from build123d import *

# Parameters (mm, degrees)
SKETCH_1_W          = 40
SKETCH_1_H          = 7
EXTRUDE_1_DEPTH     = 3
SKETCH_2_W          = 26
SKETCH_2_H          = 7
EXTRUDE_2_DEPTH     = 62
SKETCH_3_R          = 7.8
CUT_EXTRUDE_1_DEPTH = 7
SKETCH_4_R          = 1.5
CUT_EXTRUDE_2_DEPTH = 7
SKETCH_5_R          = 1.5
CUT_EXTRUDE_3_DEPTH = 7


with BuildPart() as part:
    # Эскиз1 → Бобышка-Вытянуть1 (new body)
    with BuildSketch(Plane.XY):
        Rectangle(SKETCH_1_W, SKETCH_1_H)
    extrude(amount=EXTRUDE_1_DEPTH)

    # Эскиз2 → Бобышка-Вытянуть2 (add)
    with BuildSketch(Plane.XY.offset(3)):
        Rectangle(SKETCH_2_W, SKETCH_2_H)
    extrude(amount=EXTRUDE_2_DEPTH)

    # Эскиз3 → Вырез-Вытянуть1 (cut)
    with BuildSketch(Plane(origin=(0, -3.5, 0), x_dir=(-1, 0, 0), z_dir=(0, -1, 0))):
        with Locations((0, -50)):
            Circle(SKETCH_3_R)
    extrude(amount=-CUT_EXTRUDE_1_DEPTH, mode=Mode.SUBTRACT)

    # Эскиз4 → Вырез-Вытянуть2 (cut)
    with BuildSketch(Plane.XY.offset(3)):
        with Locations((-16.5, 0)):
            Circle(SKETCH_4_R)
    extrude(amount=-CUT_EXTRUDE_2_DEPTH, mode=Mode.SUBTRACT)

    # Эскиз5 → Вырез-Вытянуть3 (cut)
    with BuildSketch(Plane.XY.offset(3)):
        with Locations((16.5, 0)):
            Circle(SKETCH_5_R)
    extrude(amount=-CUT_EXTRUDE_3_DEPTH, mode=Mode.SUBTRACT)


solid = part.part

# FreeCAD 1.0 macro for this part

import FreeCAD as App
import Part
import Sketcher
from FreeCAD import Vector
Q = App.Units.Quantity

doc = App.newDocument("Part")
params = doc.addObject("Spreadsheet::Sheet", "Params")
for row, (alias, value) in enumerate([
    ("sketch1_width", "40 mm"),
    ("sketch1_height", "7 mm"),
    ("pad1_length", "3 mm"),
    ("sketch2_width", "26 mm"),
    ("sketch2_height", "7 mm"),
    ("pad2_length", "62 mm"),
    ("sketch3_diameter", "15.6 mm"),
    ("pocket1_length", "7 mm"),
    ("sketch4_diameter", "3 mm"),
    ("pocket2_length", "7 mm"),
    ("sketch5_diameter", "3 mm"),
    ("pocket3_length", "7 mm"),
], start=1):
    params.set(f"A{row}", alias)
    params.set(f"B{row}", "=" + value)
    params.setAlias(f"B{row}", alias)

body = doc.addObject("PartDesign::Body", "Body")

sketch1 = body.newObject("Sketcher::SketchObject", "Sketch")
sketch1.AttachmentSupport = (doc.getObject("XY_Plane"), [""])
sketch1.MapMode = "FlatFace"
sketch1.addGeometry(Part.LineSegment(Vector(-20, 3.5, 0), Vector(-20, -3.5, 0)), False)
sketch1.addGeometry(Part.LineSegment(Vector(-20, -3.5, 0), Vector(20, -3.5, 0)), False)
sketch1.addGeometry(Part.LineSegment(Vector(20, -3.5, 0), Vector(20, 3.5, 0)), False)
sketch1.addGeometry(Part.LineSegment(Vector(20, 3.5, 0), Vector(-20, 3.5, 0)), False)
sketch1.addConstraint(Sketcher.Constraint("Coincident", 0, 2, 1, 1))
sketch1.addConstraint(Sketcher.Constraint("Coincident", 1, 2, 2, 1))
sketch1.addConstraint(Sketcher.Constraint("Coincident", 2, 2, 3, 1))
sketch1.addConstraint(Sketcher.Constraint("Coincident", 3, 2, 0, 1))
sketch1.addConstraint(Sketcher.Constraint("Vertical", 0))
sketch1.addConstraint(Sketcher.Constraint("Horizontal", 1))
sketch1.addConstraint(Sketcher.Constraint("Vertical", 2))
sketch1.addConstraint(Sketcher.Constraint("Horizontal", 3))
sketch1.addConstraint(Sketcher.Constraint("Symmetric", 0, 2, 2, 2, -1, 1))
sketch1.addConstraint(Sketcher.Constraint("DistanceX", 1, 1, 1, 2, Q("40 mm")))
sketch1.addConstraint(Sketcher.Constraint("DistanceY", 0, 2, 0, 1, Q("7 mm")))
sketch1.setExpression("Constraints[9]", "Params.sketch1_width")
sketch1.setExpression("Constraints[10]", "Params.sketch1_height")
pad1 = body.newObject("PartDesign::Pad", "Pad")
pad1.Profile = sketch1
pad1.setExpression("Length", "Params.pad1_length")

sketch2 = body.newObject("Sketcher::SketchObject", "Sketch001")
sketch2.AttachmentSupport = (doc.getObject("XY_Plane"), [""])
sketch2.MapMode = "FlatFace"
sketch2.AttachmentOffset = App.Placement(Vector(0, 0, 3), App.Rotation())
sketch2.addGeometry(Part.LineSegment(Vector(-13, 3.5, 0), Vector(-13, -3.5, 0)), False)
sketch2.addGeometry(Part.LineSegment(Vector(-13, -3.5, 0), Vector(13, -3.5, 0)), False)
sketch2.addGeometry(Part.LineSegment(Vector(13, -3.5, 0), Vector(13, 3.5, 0)), False)
sketch2.addGeometry(Part.LineSegment(Vector(13, 3.5, 0), Vector(-13, 3.5, 0)), False)
sketch2.addConstraint(Sketcher.Constraint("Coincident", 0, 2, 1, 1))
sketch2.addConstraint(Sketcher.Constraint("Coincident", 1, 2, 2, 1))
sketch2.addConstraint(Sketcher.Constraint("Coincident", 2, 2, 3, 1))
sketch2.addConstraint(Sketcher.Constraint("Coincident", 3, 2, 0, 1))
sketch2.addConstraint(Sketcher.Constraint("Vertical", 0))
sketch2.addConstraint(Sketcher.Constraint("Horizontal", 1))
sketch2.addConstraint(Sketcher.Constraint("Vertical", 2))
sketch2.addConstraint(Sketcher.Constraint("Horizontal", 3))
sketch2.addConstraint(Sketcher.Constraint("Symmetric", 0, 2, 2, 2, -1, 1))
sketch2.addConstraint(Sketcher.Constraint("DistanceX", 1, 1, 1, 2, Q("26 mm")))
sketch2.addConstraint(Sketcher.Constraint("DistanceY", 0, 2, 0, 1, Q("7 mm")))
sketch2.setExpression("Constraints[9]", "Params.sketch2_width")
sketch2.setExpression("Constraints[10]", "Params.sketch2_height")
pad2 = body.newObject("PartDesign::Pad", "Pad001")
pad2.Profile = sketch2
pad2.setExpression("Length", "Params.pad2_length")

sketch3 = body.newObject("Sketcher::SketchObject", "Sketch002")
sketch3.AttachmentSupport = (doc.getObject("XZ_Plane"), [""])
sketch3.MapMode = "FlatFace"
sketch3.AttachmentOffset = App.Placement(Vector(0, 0, 3.5), App.Rotation())
sketch3.addGeometry(Part.Circle(Vector(0, 50, 0), Vector(0, 0, 1), 7.8), False)
sketch3.addConstraint(Sketcher.Constraint("PointOnObject", 0, 3, -2))
sketch3.addConstraint(Sketcher.Constraint("Diameter", 0, Q("15.6 mm")))
sketch3.addConstraint(Sketcher.Constraint("DistanceY", -1, 1, 0, 3, Q("50 mm")))
sketch3.setExpression("Constraints[1]", "Params.sketch3_diameter")
pocket1 = body.newObject("PartDesign::Pocket", "Pocket")
pocket1.Profile = sketch3
pocket1.setExpression("Length", "Params.pocket1_length")

sketch4 = body.newObject("Sketcher::SketchObject", "Sketch003")
sketch4.AttachmentSupport = (doc.getObject("XY_Plane"), [""])
sketch4.MapMode = "FlatFace"
sketch4.AttachmentOffset = App.Placement(Vector(0, 0, 3), App.Rotation())
sketch4.addGeometry(Part.Circle(Vector(-16.5, 0, 0), Vector(0, 0, 1), 1.5), False)
sketch4.addConstraint(Sketcher.Constraint("PointOnObject", 0, 3, -1))
sketch4.addConstraint(Sketcher.Constraint("Diameter", 0, Q("3 mm")))
sketch4.addConstraint(Sketcher.Constraint("DistanceX", 0, 3, -1, 1, Q("16.5 mm")))
sketch4.setExpression("Constraints[1]", "Params.sketch4_diameter")
pocket2 = body.newObject("PartDesign::Pocket", "Pocket001")
pocket2.Profile = sketch4
pocket2.setExpression("Length", "Params.pocket2_length")

sketch5 = body.newObject("Sketcher::SketchObject", "Sketch004")
sketch5.AttachmentSupport = (doc.getObject("XY_Plane"), [""])
sketch5.MapMode = "FlatFace"
sketch5.AttachmentOffset = App.Placement(Vector(0, 0, 3), App.Rotation())
sketch5.addGeometry(Part.Circle(Vector(16.5, 0, 0), Vector(0, 0, 1), 1.5), False)
sketch5.addConstraint(Sketcher.Constraint("PointOnObject", 0, 3, -1))
sketch5.addConstraint(Sketcher.Constraint("Diameter", 0, Q("3 mm")))
sketch5.addConstraint(Sketcher.Constraint("DistanceX", -1, 1, 0, 3, Q("16.5 mm")))
sketch5.setExpression("Constraints[1]", "Params.sketch5_diameter")
pocket3 = body.newObject("PartDesign::Pocket", "Pocket002")
pocket3.Profile = sketch5
pocket3.setExpression("Length", "Params.pocket3_length")

doc.recompute()
